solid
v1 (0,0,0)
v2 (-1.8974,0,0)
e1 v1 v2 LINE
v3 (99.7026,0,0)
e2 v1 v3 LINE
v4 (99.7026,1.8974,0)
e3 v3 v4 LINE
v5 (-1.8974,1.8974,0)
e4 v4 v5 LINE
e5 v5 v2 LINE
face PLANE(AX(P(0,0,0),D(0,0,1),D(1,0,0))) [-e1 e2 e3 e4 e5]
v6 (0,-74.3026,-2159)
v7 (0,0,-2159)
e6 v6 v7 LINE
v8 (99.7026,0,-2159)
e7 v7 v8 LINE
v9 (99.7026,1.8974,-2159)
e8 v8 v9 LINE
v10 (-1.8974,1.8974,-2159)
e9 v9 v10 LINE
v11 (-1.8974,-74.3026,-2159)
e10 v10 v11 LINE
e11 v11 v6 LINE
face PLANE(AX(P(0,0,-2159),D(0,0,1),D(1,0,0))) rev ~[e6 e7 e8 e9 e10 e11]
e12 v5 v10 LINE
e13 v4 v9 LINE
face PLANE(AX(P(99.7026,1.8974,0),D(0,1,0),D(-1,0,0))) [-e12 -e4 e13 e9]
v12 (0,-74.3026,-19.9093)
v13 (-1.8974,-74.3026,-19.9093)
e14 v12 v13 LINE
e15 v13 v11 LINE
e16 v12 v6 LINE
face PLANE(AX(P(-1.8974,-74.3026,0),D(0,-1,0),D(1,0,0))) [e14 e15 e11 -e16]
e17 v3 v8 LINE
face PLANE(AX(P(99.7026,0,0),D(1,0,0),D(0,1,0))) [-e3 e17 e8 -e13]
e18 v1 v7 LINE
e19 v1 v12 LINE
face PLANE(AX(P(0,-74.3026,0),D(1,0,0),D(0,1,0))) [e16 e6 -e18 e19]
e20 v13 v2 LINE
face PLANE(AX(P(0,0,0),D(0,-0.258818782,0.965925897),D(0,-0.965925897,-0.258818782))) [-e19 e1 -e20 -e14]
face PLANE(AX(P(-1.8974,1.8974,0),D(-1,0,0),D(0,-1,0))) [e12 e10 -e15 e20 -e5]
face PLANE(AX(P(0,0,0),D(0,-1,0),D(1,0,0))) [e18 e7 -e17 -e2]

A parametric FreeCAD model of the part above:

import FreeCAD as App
import Part
import Sketcher
Q = App.Units.Quantity


def add_polygon(sketch, points):
    """Adds a closed chain of lines whose ends are joined by coincident constraints."""
    first, n = sketch.GeometryCount, len(points)
    for a, b in zip(points, points[1:] + points[:1]):
        sketch.addGeometry(Part.LineSegment(App.Vector(*a, 0), App.Vector(*b, 0)), False)
    for i in range(n):
        sketch.addConstraint(Sketcher.Constraint("Coincident", first + i, 2, first + (i + 1) % n, 1))

doc = App.newDocument("Part")
body = doc.addObject("PartDesign::Body", "Body")

# Sketch on XY plane
sketch1 = doc.addObject("Sketcher::SketchObject", "Sketch")
body.addObject(sketch1)
sketch1.AttachmentSupport = (doc.XY_Plane, [""])
sketch1.MapMode = "FlatFace"
add_polygon(sketch1, [(-1.9, 1.9), (-1.9, -74.3), (0, -74.3), (0, 0), (99.7, 0), (99.7, 1.9)])  # lines 0-5
sketch1.addConstraint([
    Sketcher.Constraint("Vertical", 0),
    Sketcher.Constraint("Horizontal", 1),
    Sketcher.Constraint("Vertical", 2),
    Sketcher.Constraint("Horizontal", 3),
    Sketcher.Constraint("Vertical", 4),
    Sketcher.Constraint("Horizontal", 5),
    Sketcher.Constraint("Coincident", 2, 2, -1, 1),
    Sketcher.Constraint("Equal", 1, 4),
    Sketcher.Constraint("DistanceX", 5, 2, 5, 1, Q("4 in")),
    Sketcher.Constraint("DistanceY", 0, 2, 0, 1, Q("3 in")),
    Sketcher.Constraint("DistanceX", 1, 1, 1, 2, Q("0.0747 in")),
])
pad1 = doc.addObject("PartDesign::Pad", "Pad")
body.addObject(pad1)
pad1.Profile = sketch1
pad1.Length = Q("85 in")
pad1.Reversed = True

# Sketch on YZ plane
sketch2 = doc.addObject("Sketcher::SketchObject", "Sketch001")
body.addObject(sketch2)
sketch2.AttachmentSupport = (doc.YZ_Plane, [""])
sketch2.MapMode = "FlatFace"
add_polygon(sketch2, [(-74, -20), (0, 0), (-74, 0)])  # lines 0-2
sketch2.addConstraint([
    Sketcher.Constraint("Horizontal", 1),
    Sketcher.Constraint("Vertical", 2),
    Sketcher.Constraint("Coincident", 0, 2, -1, 1),
    Sketcher.Constraint("Angle", 0, Q("15 deg")),
    Sketcher.Constraint("DistanceX", 1, 2, 1, 1, Q("2.9253 in")),
])
pocket1 = doc.addObject("PartDesign::Pocket", "Pocket")
body.addObject(pocket1)
pocket1.Profile = sketch2
pocket1.Type = "UpToFirst"

doc.recompute()
